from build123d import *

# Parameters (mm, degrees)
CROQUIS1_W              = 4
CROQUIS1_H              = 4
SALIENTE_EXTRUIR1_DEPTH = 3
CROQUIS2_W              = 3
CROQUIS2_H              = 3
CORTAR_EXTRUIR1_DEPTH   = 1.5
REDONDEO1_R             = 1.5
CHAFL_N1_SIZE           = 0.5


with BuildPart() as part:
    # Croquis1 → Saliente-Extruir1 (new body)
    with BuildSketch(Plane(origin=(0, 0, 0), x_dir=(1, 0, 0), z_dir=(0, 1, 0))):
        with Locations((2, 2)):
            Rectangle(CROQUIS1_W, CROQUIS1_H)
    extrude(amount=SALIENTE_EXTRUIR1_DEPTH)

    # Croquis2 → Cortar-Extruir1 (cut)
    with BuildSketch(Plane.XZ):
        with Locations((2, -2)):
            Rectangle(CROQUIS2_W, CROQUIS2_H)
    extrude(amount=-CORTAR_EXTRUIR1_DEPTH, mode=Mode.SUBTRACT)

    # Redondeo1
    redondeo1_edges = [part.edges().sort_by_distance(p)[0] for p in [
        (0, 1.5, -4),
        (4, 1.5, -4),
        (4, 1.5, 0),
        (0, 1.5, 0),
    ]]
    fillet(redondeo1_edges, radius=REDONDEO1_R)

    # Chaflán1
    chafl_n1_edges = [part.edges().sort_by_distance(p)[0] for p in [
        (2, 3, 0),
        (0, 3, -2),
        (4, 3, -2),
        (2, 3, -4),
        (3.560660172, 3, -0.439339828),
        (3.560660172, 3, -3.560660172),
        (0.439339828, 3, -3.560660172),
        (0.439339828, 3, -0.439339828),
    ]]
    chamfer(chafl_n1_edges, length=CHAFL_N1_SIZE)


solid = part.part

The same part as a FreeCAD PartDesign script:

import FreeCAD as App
import Part
import Sketcher
Q = App.Units.Quantity


def edges_at(feature, points):
    """Names of the edges that pass closest to the given points."""
    edges = feature.Shape.Edges
    near = lambda p: min(range(len(edges)), key=lambda i: edges[i].distToShape(Part.Vertex(*p))[0])
    return sorted({f"Edge{near(p) + 1}" for p in points})


def add_polygon(sketch, points):
    """Adds a closed chain of lines whose ends are joined by coincident constraints."""
    first, n = sketch.GeometryCount, len(points)
    for a, b in zip(points, points[1:] + points[:1]):
        sketch.addGeometry(Part.LineSegment(App.Vector(*a, 0), App.Vector(*b, 0)), False)
    for i in range(n):
        sketch.addConstraint(Sketcher.Constraint("Coincident", first + i, 2, first + (i + 1) % n, 1))

doc = App.newDocument("Part")
params = doc.addObject("Spreadsheet::Sheet", "Params")
for row, (alias, value) in enumerate([
    ("sketch1_width", "4 mm"),
    ("pad1_length", "3 mm"),
    ("sketch2_width", "3 mm"),
    ("pocket1_length", "1.5 mm"),
    ("fillet_radius", "1.5 mm"),
    ("chamfer_size", "0.5 mm"),
], start=1):
    params.set(f"A{row}", alias)
    params.set(f"B{row}", "=" + value)
    params.setAlias(f"B{row}", alias)

body = doc.addObject("PartDesign::Body", "Body")

sketch1 = body.newObject("Sketcher::SketchObject", "Sketch")
sketch1.AttachmentSupport = (doc.getObject("XZ_Plane"), [""])
sketch1.MapMode = "FlatFace"
add_polygon(sketch1, [(0, -4), (0, 0), (4, 0), (4, -4)])
sketch1.addConstraint(Sketcher.Constraint("Vertical", 0))
sketch1.addConstraint(Sketcher.Constraint("Horizontal", 1))
sketch1.addConstraint(Sketcher.Constraint("Vertical", 2))
sketch1.addConstraint(Sketcher.Constraint("Horizontal", 3))
sketch1.addConstraint(Sketcher.Constraint("Coincident", 0, 2, -1, 1))
sketch1.addConstraint(Sketcher.Constraint("Equal", 3, 0))
sketch1.addConstraint(Sketcher.Constraint("DistanceX", 1, 1, 1, 2, Q("4 mm")))
sketch1.setExpression("Constraints[10]", "Params.sketch1_width")
pad1 = body.newObject("PartDesign::Pad", "Pad")
pad1.Profile = sketch1
pad1.setExpression("Length", "Params.pad1_length")
pad1.Reversed = True

sketch2 = body.newObject("Sketcher::SketchObject", "Sketch001")
sketch2.AttachmentSupport = (doc.getObject("XZ_Plane"), [""])
sketch2.MapMode = "FlatFace"
add_polygon(sketch2, [(0.5, -0.5), (0.5, -3.5), (3.5, -3.5), (3.5, -0.5)])
sketch2.addConstraint(Sketcher.Constraint("Vertical", 0))
sketch2.addConstraint(Sketcher.Constraint("Horizontal", 1))
sketch2.addConstraint(Sketcher.Constraint("Vertical", 2))
sketch2.addConstraint(Sketcher.Constraint("Horizontal", 3))
sketch2.addConstraint(Sketcher.Constraint("Equal", 3, 0))
sketch2.addConstraint(Sketcher.Constraint("DistanceX", 1, 1, 1, 2, Q("3 mm")))
sketch2.addConstraint(Sketcher.Constraint("DistanceX", -1, 1, 0, 2, Q("0.5 mm")))
sketch2.addConstraint(Sketcher.Constraint("DistanceY", 0, 2, -1, 1, Q("3.5 mm")))
sketch2.setExpression("Constraints[9]", "Params.sketch2_width")
pocket1 = body.newObject("PartDesign::Pocket", "Pocket")
pocket1.Profile = sketch2
pocket1.setExpression("Length", "Params.pocket1_length")
doc.recompute()

fillet = body.newObject("PartDesign::Fillet", "Fillet")
fillet.Base = (pocket1, edges_at(pocket1, [
    (0, 1.5, -4),
    (4, 1.5, -4),
    (4, 1.5, 0),
    (0, 1.5, 0),
]))
fillet.setExpression("Radius", "Params.fillet_radius")
doc.recompute()

chamfer = body.newObject("PartDesign::Chamfer", "Chamfer")
chamfer.Base = (fillet, edges_at(fillet, [
    (2, 3, 0),
    (0, 3, -2),
    (4, 3, -2),
    (2, 3, -4),
    (3.561, 3, -0.439),
    (3.561, 3, -3.561),
    (0.439, 3, -3.561),
    (0.439, 3, -0.439),
]))
chamfer.setExpression("Size", "Params.chamfer_size")

doc.recompute()
